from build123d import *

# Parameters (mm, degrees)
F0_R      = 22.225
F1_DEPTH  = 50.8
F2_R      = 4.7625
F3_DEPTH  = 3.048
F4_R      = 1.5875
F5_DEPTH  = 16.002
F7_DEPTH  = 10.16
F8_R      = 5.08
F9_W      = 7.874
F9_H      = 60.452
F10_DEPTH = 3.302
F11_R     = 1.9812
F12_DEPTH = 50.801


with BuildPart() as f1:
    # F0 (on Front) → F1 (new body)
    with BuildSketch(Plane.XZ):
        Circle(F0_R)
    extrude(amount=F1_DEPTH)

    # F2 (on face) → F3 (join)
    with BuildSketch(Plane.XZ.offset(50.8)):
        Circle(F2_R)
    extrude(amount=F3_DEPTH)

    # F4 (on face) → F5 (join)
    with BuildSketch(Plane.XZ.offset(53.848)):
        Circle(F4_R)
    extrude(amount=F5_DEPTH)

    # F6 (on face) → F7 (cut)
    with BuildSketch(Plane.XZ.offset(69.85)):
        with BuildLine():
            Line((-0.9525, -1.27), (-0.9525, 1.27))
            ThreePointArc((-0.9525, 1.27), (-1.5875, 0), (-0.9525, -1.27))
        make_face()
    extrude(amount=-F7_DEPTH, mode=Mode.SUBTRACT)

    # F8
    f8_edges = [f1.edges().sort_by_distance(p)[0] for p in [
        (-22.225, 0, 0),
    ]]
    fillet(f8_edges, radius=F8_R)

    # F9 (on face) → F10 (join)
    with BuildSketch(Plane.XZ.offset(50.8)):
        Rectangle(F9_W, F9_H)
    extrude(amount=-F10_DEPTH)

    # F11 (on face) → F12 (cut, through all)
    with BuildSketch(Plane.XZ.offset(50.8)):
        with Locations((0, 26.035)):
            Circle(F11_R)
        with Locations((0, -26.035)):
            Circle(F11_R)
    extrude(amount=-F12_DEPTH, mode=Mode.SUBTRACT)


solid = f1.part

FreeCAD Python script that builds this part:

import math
import FreeCAD as App
import Part
import Sketcher

V = App.Vector
Q = App.Units.Quantity


def edges_at(feature, points):
    """Names of the edges that pass closest to the given points."""
    edges = feature.Shape.Edges
    near = lambda p: min(range(len(edges)), key=lambda i: edges[i].distToShape(Part.Vertex(*p))[0])
    return sorted({f"Edge{near(p) + 1}" for p in points})

doc = App.newDocument("Part")
body = doc.addObject("PartDesign::Body", "Body")

# Sketch on XZ plane
sketch1 = doc.addObject("Sketcher::SketchObject", "Sketch")
body.addObject(sketch1)
sketch1.AttachmentSupport = (doc.XZ_Plane, [""])
sketch1.MapMode = "FlatFace"
sketch1.addGeometry(Part.Circle(V(0, 0, 0), V(0, 0, 1), 22), False)
sketch1.addConstraint(Sketcher.Constraint("Coincident", 0, 3, -1, 1))
sketch1.addConstraint(Sketcher.Constraint("Diameter", 0, Q("1.75 in")))
pad1 = doc.addObject("PartDesign::Pad", "Pad")
body.addObject(pad1)
pad1.Profile = sketch1
pad1.Length = Q("2 in")

# Sketch on XZ plane
sketch2 = doc.addObject("Sketcher::SketchObject", "Sketch001")
body.addObject(sketch2)
sketch2.AttachmentSupport = (doc.XZ_Plane, [""])
sketch2.MapMode = "FlatFace"
sketch2.AttachmentOffset = App.Placement(V(0, 0, 2 * 25.4), App.Rotation())
sketch2.addGeometry(Part.Circle(V(0, 0, 0), V(0, 0, 1), 4.8), False)
sketch2.addConstraint(Sketcher.Constraint("Coincident", 0, 3, -1, 1))
sketch2.addConstraint(Sketcher.Constraint("Diameter", 0, Q("0.375 in")))
pad2 = doc.addObject("PartDesign::Pad", "Pad001")
body.addObject(pad2)
pad2.Profile = sketch2
pad2.Length = Q("0.12 in")

# Sketch on XZ plane
sketch3 = doc.addObject("Sketcher::SketchObject", "Sketch002")
body.addObject(sketch3)
sketch3.AttachmentSupport = (doc.XZ_Plane, [""])
sketch3.MapMode = "FlatFace"
sketch3.AttachmentOffset = App.Placement(V(0, 0, 2.12 * 25.4), App.Rotation())
sketch3.addGeometry(Part.Circle(V(0, 0, 0), V(0, 0, 1), 1.6), False)
sketch3.addConstraint(Sketcher.Constraint("Coincident", 0, 3, -1, 1))
sketch3.addConstraint(Sketcher.Constraint("Diameter", 0, Q("0.125 in")))
pad3 = doc.addObject("PartDesign::Pad", "Pad002")
body.addObject(pad3)
pad3.Profile = sketch3
pad3.Length = Q("0.63 in")

# Sketch on XZ plane
sketch4 = doc.addObject("Sketcher::SketchObject", "Sketch003")
body.addObject(sketch4)
sketch4.AttachmentSupport = (doc.XZ_Plane, [""])
sketch4.MapMode = "FlatFace"
sketch4.AttachmentOffset = App.Placement(V(0, 0, 2.75 * 25.4), App.Rotation())
sketch4.addGeometry(Part.LineSegment(V(-1, -1.3, 0), V(-1, 1.3, 0)), False)
sketch4.addGeometry(Part.ArcOfCircle(Part.Circle(V(0, 0, 0), V(0, 0, 1), 1.6), math.radians(127), math.radians(233)), False)
sketch4.addConstraint(Sketcher.Constraint("Coincident", 0, 1, 1, 2))
sketch4.addConstraint(Sketcher.Constraint("Coincident", 1, 1, 0, 2))
sketch4.addConstraint(Sketcher.Constraint("Vertical", 0))
sketch4.addConstraint(Sketcher.Constraint("Coincident", 1, 3, -1, 1))
sketch4.addConstraint(Sketcher.Constraint("DistanceY", 0, 1, 0, 2, Q("0.1 in")))
sketch4.addConstraint(Sketcher.Constraint("Radius", 1, Q("0.0625 in")))
pocket1 = doc.addObject("PartDesign::Pocket", "Pocket")
body.addObject(pocket1)
pocket1.Profile = sketch4
pocket1.Length = Q("0.4 in")
doc.recompute()

fillet = doc.addObject("PartDesign::Fillet", "Fillet")
body.addObject(fillet)
fillet.Base = (pocket1, edges_at(pocket1, [(-22.225, 0, 0)]))
fillet.Radius = Q("0.2 in")

# Sketch on XZ plane
sketch5 = doc.addObject("Sketcher::SketchObject", "Sketch004")
body.addObject(sketch5)
sketch5.AttachmentSupport = (doc.XZ_Plane, [""])
sketch5.MapMode = "FlatFace"
sketch5.AttachmentOffset = App.Placement(V(0, 0, 2 * 25.4), App.Rotation())
sketch5.addGeometry(Part.LineSegment(V(-4, 30, 0), V(-4, -30, 0)), False)
sketch5.addGeometry(Part.LineSegment(V(-4, -30, 0), V(4, -30, 0)), False)
sketch5.addGeometry(Part.LineSegment(V(4, -30, 0), V(4, 30, 0)), False)
sketch5.addGeometry(Part.LineSegment(V(4, 30, 0), V(-4, 30, 0)), False)
sketch5.addConstraint(Sketcher.Constraint("Coincident", 0, 2, 1, 1))
sketch5.addConstraint(Sketcher.Constraint("Coincident", 1, 2, 2, 1))
sketch5.addConstraint(Sketcher.Constraint("Coincident", 2, 2, 3, 1))
sketch5.addConstraint(Sketcher.Constraint("Coincident", 3, 2, 0, 1))
sketch5.addConstraint(Sketcher.Constraint("Vertical", 0))
sketch5.addConstraint(Sketcher.Constraint("Horizontal", 1))
sketch5.addConstraint(Sketcher.Constraint("Vertical", 2))
sketch5.addConstraint(Sketcher.Constraint("Horizontal", 3))
sketch5.addConstraint(Sketcher.Constraint("Symmetric", 0, 2, 2, 2, -1, 1))
sketch5.addConstraint(Sketcher.Constraint("DistanceX", 1, 1, 1, 2, Q("0.31 in")))
sketch5.addConstraint(Sketcher.Constraint("DistanceY", 0, 2, 0, 1, Q("2.38 in")))
pad4 = doc.addObject("PartDesign::Pad", "Pad003")
body.addObject(pad4)
pad4.Profile = sketch5
pad4.Length = Q("0.13 in")
pad4.Reversed = True

# Sketch on XZ plane
sketch6 = doc.addObject("Sketcher::SketchObject", "Sketch005")
body.addObject(sketch6)
sketch6.AttachmentSupport = (doc.XZ_Plane, [""])
sketch6.MapMode = "FlatFace"
sketch6.AttachmentOffset = App.Placement(V(0, 0, 2 * 25.4), App.Rotation())
sketch6.addGeometry(Part.Circle(V(0, 26, 0), V(0, 0, 1), 2), False)
sketch6.addGeometry(Part.Circle(V(0, -26, 0), V(0, 0, 1), 2), False)
sketch6.addConstraint(Sketcher.Constraint("Equal", 0, 1))
sketch6.addConstraint(Sketcher.Constraint("Symmetric", 0, 3, 1, 3, -1, 1))
sketch6.addConstraint(Sketcher.Constraint("PointOnObject", 0, 3, -2))
sketch6.addConstraint(Sketcher.Constraint("Diameter", 0, Q("0.156 in")))
sketch6.addConstraint(Sketcher.Constraint("DistanceY", 1, 3, 0, 3, Q("2.05 in")))
pocket2 = doc.addObject("PartDesign::Pocket", "Pocket001")
body.addObject(pocket2)
pocket2.Profile = sketch6
pocket2.Type = "ThroughAll"

doc.recompute()
